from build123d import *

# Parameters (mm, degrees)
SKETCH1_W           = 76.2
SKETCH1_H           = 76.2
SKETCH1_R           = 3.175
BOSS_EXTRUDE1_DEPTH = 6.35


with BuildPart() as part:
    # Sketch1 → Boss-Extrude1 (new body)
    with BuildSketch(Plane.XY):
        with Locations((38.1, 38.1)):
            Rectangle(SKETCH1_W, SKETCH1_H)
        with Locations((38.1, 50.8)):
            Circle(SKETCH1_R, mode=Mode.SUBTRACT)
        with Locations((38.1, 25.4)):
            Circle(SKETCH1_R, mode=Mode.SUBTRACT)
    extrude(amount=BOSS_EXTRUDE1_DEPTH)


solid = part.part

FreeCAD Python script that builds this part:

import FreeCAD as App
import Part
import Sketcher
Q = App.Units.Quantity


def add_polygon(sketch, points):
    """Adds a closed chain of lines whose ends are joined by coincident constraints."""
    first, n = sketch.GeometryCount, len(points)
    for a, b in zip(points, points[1:] + points[:1]):
        sketch.addGeometry(Part.LineSegment(App.Vector(*a, 0), App.Vector(*b, 0)), False)
    for i in range(n):
        sketch.addConstraint(Sketcher.Constraint("Coincident", first + i, 2, first + (i + 1) % n, 1))

doc = App.newDocument("Part")
params = doc.addObject("Spreadsheet::Sheet", "Params")
for row, (alias, value) in enumerate([
    ("sketch1_diameter", "0.25 in"),
    ("sketch1_width", "3 in"),
    ("pad1_length", "0.25 in"),
], start=1):
    params.set(f"A{row}", alias)
    params.set(f"B{row}", "=" + value)
    params.setAlias(f"B{row}", alias)

body = doc.addObject("PartDesign::Body", "Body")

sketch1 = body.newObject("Sketcher::SketchObject", "Sketch")
sketch1.AttachmentSupport = (doc.getObject("XY_Plane"), [""])
sketch1.MapMode = "FlatFace"
add_polygon(sketch1, [(0, 76.2), (0, 0), (76.2, 0), (76.2, 76.2)])
sketch1.addGeometry(Part.Circle(App.Vector(38.1, 25.4, 0), App.Vector(0, 0, 1), 3.2), False)
sketch1.addGeometry(Part.Circle(App.Vector(38.1, 50.8, 0), App.Vector(0, 0, 1), 3.2), False)
sketch1.addConstraint([
    Sketcher.Constraint("Vertical", 0),
    Sketcher.Constraint("Horizontal", 1),
    Sketcher.Constraint("Vertical", 2),
    Sketcher.Constraint("Horizontal", 3),
    Sketcher.Constraint("Coincident", 0, 2, -1, 1),
    Sketcher.Constraint("Equal", 4, 5),
    Sketcher.Constraint("Vertical", 4, 3, 5, 3),
    Sketcher.Constraint("Equal", 3, 0),
    Sketcher.Constraint("Diameter", 4, Q("0.25 in")),
    Sketcher.Constraint("DistanceX", 1, 1, 1, 2, Q("3 in")),
    Sketcher.Constraint("DistanceY", -1, 1, 4, 3, Q("1 in")),
    Sketcher.Constraint("DistanceY", -1, 1, 5, 3, Q("2 in")),
    Sketcher.Constraint("DistanceX", -1, 1, 4, 3, Q("1.5 in")),
])
sketch1.setExpression("Constraints[12]", "Params.sketch1_diameter")
sketch1.setExpression("Constraints[13]", "Params.sketch1_width")
pad1 = body.newObject("PartDesign::Pad", "Pad")
pad1.Profile = sketch1
pad1.setExpression("Length", "Params.pad1_length")

doc.recompute()
